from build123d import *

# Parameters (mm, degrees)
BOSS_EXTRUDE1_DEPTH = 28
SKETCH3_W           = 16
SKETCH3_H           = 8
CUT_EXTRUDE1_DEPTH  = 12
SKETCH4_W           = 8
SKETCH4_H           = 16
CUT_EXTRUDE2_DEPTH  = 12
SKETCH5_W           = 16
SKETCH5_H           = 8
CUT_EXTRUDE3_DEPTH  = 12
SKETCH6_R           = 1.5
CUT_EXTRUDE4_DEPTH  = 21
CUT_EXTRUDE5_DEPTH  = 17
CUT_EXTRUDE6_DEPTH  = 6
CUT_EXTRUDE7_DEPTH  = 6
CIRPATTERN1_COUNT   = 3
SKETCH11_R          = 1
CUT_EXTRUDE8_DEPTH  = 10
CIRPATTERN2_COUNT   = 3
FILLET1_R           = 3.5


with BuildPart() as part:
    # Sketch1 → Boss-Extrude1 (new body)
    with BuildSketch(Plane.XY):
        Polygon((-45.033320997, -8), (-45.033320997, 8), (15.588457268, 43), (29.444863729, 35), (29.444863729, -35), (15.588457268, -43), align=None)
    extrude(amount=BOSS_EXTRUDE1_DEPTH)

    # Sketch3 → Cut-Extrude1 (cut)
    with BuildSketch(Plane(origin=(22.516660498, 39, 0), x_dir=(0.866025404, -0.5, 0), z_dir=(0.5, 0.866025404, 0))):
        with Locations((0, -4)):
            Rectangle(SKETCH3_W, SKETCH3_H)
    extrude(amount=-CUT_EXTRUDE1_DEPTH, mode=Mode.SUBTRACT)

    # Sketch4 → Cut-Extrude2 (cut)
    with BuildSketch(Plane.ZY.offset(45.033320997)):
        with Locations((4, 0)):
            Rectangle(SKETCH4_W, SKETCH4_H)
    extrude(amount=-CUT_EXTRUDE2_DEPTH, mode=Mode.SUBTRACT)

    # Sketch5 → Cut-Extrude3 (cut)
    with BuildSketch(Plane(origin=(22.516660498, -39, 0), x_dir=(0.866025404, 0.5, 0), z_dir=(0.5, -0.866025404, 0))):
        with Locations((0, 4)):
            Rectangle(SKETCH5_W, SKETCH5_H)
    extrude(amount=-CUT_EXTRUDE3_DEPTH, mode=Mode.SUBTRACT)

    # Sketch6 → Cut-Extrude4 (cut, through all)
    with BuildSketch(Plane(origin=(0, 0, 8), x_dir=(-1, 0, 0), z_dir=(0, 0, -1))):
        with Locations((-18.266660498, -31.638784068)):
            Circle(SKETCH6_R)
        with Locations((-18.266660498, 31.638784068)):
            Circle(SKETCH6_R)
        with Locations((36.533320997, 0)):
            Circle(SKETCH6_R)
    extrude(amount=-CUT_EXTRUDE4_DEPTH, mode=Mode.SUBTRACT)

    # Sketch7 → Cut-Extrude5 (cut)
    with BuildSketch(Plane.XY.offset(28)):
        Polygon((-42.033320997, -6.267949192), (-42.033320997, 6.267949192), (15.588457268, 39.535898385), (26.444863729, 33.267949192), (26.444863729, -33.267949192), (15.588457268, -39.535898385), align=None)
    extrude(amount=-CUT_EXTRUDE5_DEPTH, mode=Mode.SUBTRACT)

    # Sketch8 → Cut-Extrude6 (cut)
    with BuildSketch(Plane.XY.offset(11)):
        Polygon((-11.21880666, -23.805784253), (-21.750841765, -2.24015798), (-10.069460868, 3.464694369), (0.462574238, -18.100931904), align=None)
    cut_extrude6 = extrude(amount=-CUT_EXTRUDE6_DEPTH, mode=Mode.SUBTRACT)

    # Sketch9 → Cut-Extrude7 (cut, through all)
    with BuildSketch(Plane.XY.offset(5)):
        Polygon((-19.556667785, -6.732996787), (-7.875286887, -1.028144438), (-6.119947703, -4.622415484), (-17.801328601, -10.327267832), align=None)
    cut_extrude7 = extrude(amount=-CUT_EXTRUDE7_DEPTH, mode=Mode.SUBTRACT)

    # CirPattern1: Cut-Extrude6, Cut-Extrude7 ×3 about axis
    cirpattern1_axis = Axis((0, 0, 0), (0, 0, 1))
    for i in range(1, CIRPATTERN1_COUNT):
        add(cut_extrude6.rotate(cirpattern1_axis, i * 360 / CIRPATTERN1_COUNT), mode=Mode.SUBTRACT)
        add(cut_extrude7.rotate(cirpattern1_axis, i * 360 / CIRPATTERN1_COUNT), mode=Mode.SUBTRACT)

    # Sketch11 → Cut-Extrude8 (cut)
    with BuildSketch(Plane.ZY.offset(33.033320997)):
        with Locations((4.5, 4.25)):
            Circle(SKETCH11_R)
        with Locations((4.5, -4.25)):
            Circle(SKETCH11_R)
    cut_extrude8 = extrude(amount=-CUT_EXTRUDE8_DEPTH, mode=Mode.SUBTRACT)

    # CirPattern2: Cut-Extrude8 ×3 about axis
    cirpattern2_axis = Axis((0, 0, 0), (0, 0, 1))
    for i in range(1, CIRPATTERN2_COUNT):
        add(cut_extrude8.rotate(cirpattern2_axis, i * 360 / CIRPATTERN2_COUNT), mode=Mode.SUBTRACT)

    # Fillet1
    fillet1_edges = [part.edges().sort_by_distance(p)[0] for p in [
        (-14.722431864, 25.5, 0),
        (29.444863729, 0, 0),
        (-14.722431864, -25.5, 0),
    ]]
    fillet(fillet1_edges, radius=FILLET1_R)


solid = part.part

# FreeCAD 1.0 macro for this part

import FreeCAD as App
import Part
import Sketcher
from FreeCAD import Vector
Q = App.Units.Quantity


def edges_at(feature, points):
    """Names of the edges that pass closest to the given points."""
    edges = feature.Shape.Edges
    near = lambda p: min(range(len(edges)), key=lambda i: edges[i].distToShape(Part.Vertex(*p))[0])
    return sorted({f"Edge{near(p) + 1}" for p in points})


def add_polygon(sketch, points):
    """Adds a closed chain of lines whose ends are joined by coincident constraints."""
    first, n = sketch.GeometryCount, len(points)
    for a, b in zip(points, points[1:] + points[:1]):
        sketch.addGeometry(Part.LineSegment(App.Vector(*a, 0), App.Vector(*b, 0)), False)
    for i in range(n):
        sketch.addConstraint(Sketcher.Constraint("Coincident", first + i, 2, first + (i + 1) % n, 1))

doc = App.newDocument("Part")
body = doc.addObject("PartDesign::Body", "Body")

# Sketch on XY plane
sketch1 = body.newObject("Sketcher::SketchObject", "Sketch")
sketch1.AttachmentSupport = (doc.getObject("XY_Plane"), [""])
sketch1.MapMode = "FlatFace"
add_polygon(sketch1, [(-45, 8), (-45, -8), (16, -43), (29, -35), (29, 35), (16, 43)])  # lines 0-5
sketch1.addConstraint([
    Sketcher.Constraint("Vertical", 0),
    Sketcher.Constraint("Vertical", 3),
    Sketcher.Constraint("Symmetric", 1, 2, 4, 2, -1),
    Sketcher.Constraint("Parallel", 1, 4),
    Sketcher.Constraint("Parallel", 2, 5),
    Sketcher.Constraint("Equal", 2, 4),
    Sketcher.Constraint("DistanceY", 0, 2, 0, 1, Q("16 mm")),
    Sketcher.Constraint("DistanceY", 3, 1, 3, 2, Q("70 mm")),
    Sketcher.Constraint("Angle", 1, Q("-30 deg")),
    Sketcher.Constraint("Distance", 1, Q("70 mm")),
    Sketcher.Constraint("DistanceX", 0, 2, -1, 1, Q("45.033321 mm")),
])
pad1 = body.newObject("PartDesign::Pad", "Pad")
pad1.Profile = sketch1
pad1.Length = 28

# Sketch on an angled plane
sketch2 = body.newObject("Sketcher::SketchObject", "Sketch001")
sketch2.Placement = App.Placement(Vector(22.51666, 39, 0), App.Rotation(Vector(0.866025404, -0.5, 0), Vector(0, 0, -1), Vector(0.5, 0.866025404, 0), "ZXY"))
add_polygon(sketch2, [(-8, 0), (-8, -8), (8, -8), (8, 0)])  # lines 0-3
sketch2.addConstraint([
    Sketcher.Constraint("Vertical", 0),
    Sketcher.Constraint("Horizontal", 1),
    Sketcher.Constraint("Vertical", 2),
    Sketcher.Constraint("Horizontal", 3),
    Sketcher.Constraint("Symmetric", 2, 2, 3, 2, -1, 1),
    Sketcher.Constraint("DistanceX", 1, 1, 1, 2, Q("16 mm")),
    Sketcher.Constraint("DistanceY", 0, 2, 0, 1, Q("8 mm")),
])
pocket1 = body.newObject("PartDesign::Pocket", "Pocket")
pocket1.Profile = sketch2
pocket1.Length = 12

# Sketch on YZ plane
sketch3 = body.newObject("Sketcher::SketchObject", "Sketch002")
sketch3.AttachmentSupport = (doc.getObject("YZ_Plane"), [""])
sketch3.MapMode = "FlatFace"
sketch3.AttachmentOffset = App.Placement(Vector(0, 0, -45.033321), App.Rotation())
add_polygon(sketch3, [(8, 0), (-8, 0), (-8, 8), (8, 8)])  # lines 0-3
sketch3.addConstraint([
    Sketcher.Constraint("Horizontal", 0),
    Sketcher.Constraint("Vertical", 1),
    Sketcher.Constraint("Horizontal", 2),
    Sketcher.Constraint("Vertical", 3),
    Sketcher.Constraint("Symmetric", 0, 2, 3, 2, -1, 1),
    Sketcher.Constraint("DistanceX", 0, 2, 0, 1, Q("16 mm")),
    Sketcher.Constraint("DistanceY", 1, 1, 1, 2, Q("8 mm")),
])
pocket2 = body.newObject("PartDesign::Pocket", "Pocket001")
pocket2.Profile = sketch3
pocket2.Length = 12
pocket2.Reversed = True

# Sketch on an angled plane
sketch4 = body.newObject("Sketcher::SketchObject", "Sketch003")
sketch4.Placement = App.Placement(Vector(22.51666, -39, 0), App.Rotation(Vector(0.866025404, 0.5, 0), Vector(0, 0, 1), Vector(0.5, -0.866025404, 0), "ZXY"))
add_polygon(sketch4, [(-8, 8), (-8, 0), (8, 0), (8, 8)])  # lines 0-3
sketch4.addConstraint([
    Sketcher.Constraint("Vertical", 0),
    Sketcher.Constraint("Horizontal", 1),
    Sketcher.Constraint("Vertical", 2),
    Sketcher.Constraint("Horizontal", 3),
    Sketcher.Constraint("Symmetric", 0, 2, 1, 2, -1, 1),
    Sketcher.Constraint("DistanceX", 1, 1, 1, 2, Q("16 mm")),
    Sketcher.Constraint("DistanceY", 0, 2, 0, 1, Q("8 mm")),
])
pocket3 = body.newObject("PartDesign::Pocket", "Pocket002")
pocket3.Profile = sketch4
pocket3.Length = 12

# Sketch on XY plane
sketch5 = body.newObject("Sketcher::SketchObject", "Sketch004")
sketch5.AttachmentSupport = (doc.getObject("XY_Plane"), [""])
sketch5.MapMode = "FlatFace"
sketch5.AttachmentOffset = App.Placement(Vector(0, 0, 8), App.Rotation())
sketch5.addGeometry([
    Part.Circle(Vector(18.3, -31.6, 0), Vector(0, 0, 1), 1.5),
    Part.Circle(Vector(18.3, 31.6, 0), Vector(0, 0, 1), 1.5),
    Part.Circle(Vector(-36.5, 0, 0), Vector(0, 0, 1), 1.5),
], False)
sketch5.addConstraint([
    Sketcher.Constraint("Equal", 0, 1),
    Sketcher.Constraint("Equal", 1, 2),
    Sketcher.Constraint("Symmetric", 0, 3, 1, 3, -1),
    Sketcher.Constraint("PointOnObject", 2, 3, -1),
    Sketcher.Constraint("Diameter", 0, Q("3 mm")),
    Sketcher.Constraint("DistanceX", -1, 1, 0, 3, Q("18.26666 mm")),
    Sketcher.Constraint("DistanceX", 2, 3, -1, 1, Q("36.533321 mm")),
    Sketcher.Constraint("DistanceY", 0, 3, 1, 3, Q("63.277568 mm")),
])
pocket4 = body.newObject("PartDesign::Pocket", "Pocket003")
pocket4.Profile = sketch5
pocket4.Type = "ThroughAll"
pocket4.Reversed = True

# Sketch on XY plane
sketch6 = body.newObject("Sketcher::SketchObject", "Sketch005")
sketch6.AttachmentSupport = (doc.getObject("XY_Plane"), [""])
sketch6.MapMode = "FlatFace"
sketch6.AttachmentOffset = App.Placement(Vector(0, 0, 28), App.Rotation())
add_polygon(sketch6, [(-42, 6), (-42, -6), (16, -40), (26, -33), (26, 33), (16, 40)])  # lines 0-5
sketch6.addConstraint([
    Sketcher.Constraint("Vertical", 0),
    Sketcher.Constraint("Vertical", 3),
    Sketcher.Constraint("Symmetric", 1, 2, 4, 2, -1),
    Sketcher.Constraint("Parallel", 1, 4),
    Sketcher.Constraint("Parallel", 2, 5),
    Sketcher.Constraint("Equal", 2, 4),
    Sketcher.Constraint("Angle", 1, Q("-30 deg")),
    Sketcher.Constraint("DistanceY", 2, 2, 0, 2, Q("27 mm")),
    Sketcher.Constraint("DistanceY", 0, 2, 0, 1, Q("12.535898 mm")),
    Sketcher.Constraint("Distance", 1, Q("66.535898 mm")),
    Sketcher.Constraint("DistanceX", 0, 2, -1, 1, Q("42.033321 mm")),
])
pocket5 = body.newObject("PartDesign::Pocket", "Pocket004")
pocket5.Profile = sketch6
pocket5.Length = 17

# Sketch on XY plane
sketch7 = body.newObject("Sketcher::SketchObject", "Sketch006")
sketch7.AttachmentSupport = (doc.getObject("XY_Plane"), [""])
sketch7.MapMode = "FlatFace"
sketch7.AttachmentOffset = App.Placement(Vector(0, 0, 11), App.Rotation())
add_polygon(sketch7, [(-22, -2), (-11, -24), (0, -18), (-10, 3)])  # lines 0-3
sketch7.addConstraint([
    Sketcher.Constraint("Perpendicular", 0, 1),
    Sketcher.Constraint("Perpendicular", 1, 2),
    Sketcher.Constraint("Perpendicular", 2, 3),
    Sketcher.Constraint("Distance", 0, Q("24 mm")),
    Sketcher.Constraint("Distance", 1, Q("13 mm")),
    Sketcher.Constraint("DistanceY", 1, 2, -1, 1, Q("18.100932 mm")),
    Sketcher.Constraint("DistanceX", 2, 2, -1, 1, Q("10.069461 mm")),
    Sketcher.Constraint("DistanceX", 3, 2, -1, 1, Q("21.750842 mm")),
])
pocket6 = body.newObject("PartDesign::Pocket", "Pocket005")
pocket6.Profile = sketch7
pocket6.Length = 6

# Sketch on XY plane
sketch8 = body.newObject("Sketcher::SketchObject", "Sketch007")
sketch8.AttachmentSupport = (doc.getObject("XY_Plane"), [""])
sketch8.MapMode = "FlatFace"
sketch8.AttachmentOffset = App.Placement(Vector(0, 0, 5), App.Rotation())
add_polygon(sketch8, [(-7.9, -1), (-19.6, -6.7), (-17.8, -10.3), (-6.1, -4.6)])  # lines 0-3
sketch8.addConstraint([
    Sketcher.Constraint("Perpendicular", 0, 1),
    Sketcher.Constraint("Perpendicular", 1, 2),
    Sketcher.Constraint("Perpendicular", 2, 3),
    Sketcher.Constraint("Distance", 0, Q("13 mm")),
    Sketcher.Constraint("Distance", 1, Q("4 mm")),
    Sketcher.Constraint("DistanceX", 1, 2, -1, 1, Q("17.801329 mm")),
    Sketcher.Constraint("DistanceX", 0, 2, 1, 2, Q("1.755339 mm")),
    Sketcher.Constraint("DistanceY", 0, 2, -1, 1, Q("6.732997 mm")),
])
pocket7 = body.newObject("PartDesign::Pocket", "Pocket006")
pocket7.Profile = sketch8
pocket7.Type = "ThroughAll"
doc.recompute()

polarpattern = body.newObject("PartDesign::PolarPattern", "PolarPattern")
polarpattern.Originals = [pocket6, pocket7]
polarpattern.Axis = (doc.getObject("Z_Axis"), [""])
polarpattern.Angle = 360
polarpattern.Occurrences = 3
body.Tip = polarpattern

# Sketch on YZ plane
sketch9 = body.newObject("Sketcher::SketchObject", "Sketch008")
sketch9.AttachmentSupport = (doc.getObject("YZ_Plane"), [""])
sketch9.MapMode = "FlatFace"
sketch9.AttachmentOffset = App.Placement(Vector(0, 0, -33.033321), App.Rotation())
sketch9.addGeometry([
    Part.Circle(Vector(4.2, 4.5, 0), Vector(0, 0, 1), 1),
    Part.Circle(Vector(-4.2, 4.5, 0), Vector(0, 0, 1), 1),
], False)
sketch9.addConstraint([
    Sketcher.Constraint("Equal", 0, 1),
    Sketcher.Constraint("Symmetric", 0, 3, 1, 3, -2),
    Sketcher.Constraint("Diameter", 0, Q("2 mm")),
    Sketcher.Constraint("DistanceY", -1, 1, 0, 3, Q("4.5 mm")),
    Sketcher.Constraint("DistanceX", 1, 3, 0, 3, Q("8.5 mm")),
])
pocket8 = body.newObject("PartDesign::Pocket", "Pocket007")
pocket8.Profile = sketch9
pocket8.Length = 10
pocket8.Reversed = True
doc.recompute()

polarpattern2 = body.newObject("PartDesign::PolarPattern", "PolarPattern001")
polarpattern2.Originals = [pocket8]
polarpattern2.Axis = (doc.getObject("Z_Axis"), [""])
polarpattern2.Angle = 360
polarpattern2.Occurrences = 3
body.Tip = polarpattern2
doc.recompute()

fillet = body.newObject("PartDesign::Fillet", "Fillet")
fillet.Base = (polarpattern2, edges_at(polarpattern2, [(-14.722, 25.5, 0), (29.445, 0, 0), (-14.722, -25.5, 0)]))
fillet.Radius = 3.5

doc.recompute()
